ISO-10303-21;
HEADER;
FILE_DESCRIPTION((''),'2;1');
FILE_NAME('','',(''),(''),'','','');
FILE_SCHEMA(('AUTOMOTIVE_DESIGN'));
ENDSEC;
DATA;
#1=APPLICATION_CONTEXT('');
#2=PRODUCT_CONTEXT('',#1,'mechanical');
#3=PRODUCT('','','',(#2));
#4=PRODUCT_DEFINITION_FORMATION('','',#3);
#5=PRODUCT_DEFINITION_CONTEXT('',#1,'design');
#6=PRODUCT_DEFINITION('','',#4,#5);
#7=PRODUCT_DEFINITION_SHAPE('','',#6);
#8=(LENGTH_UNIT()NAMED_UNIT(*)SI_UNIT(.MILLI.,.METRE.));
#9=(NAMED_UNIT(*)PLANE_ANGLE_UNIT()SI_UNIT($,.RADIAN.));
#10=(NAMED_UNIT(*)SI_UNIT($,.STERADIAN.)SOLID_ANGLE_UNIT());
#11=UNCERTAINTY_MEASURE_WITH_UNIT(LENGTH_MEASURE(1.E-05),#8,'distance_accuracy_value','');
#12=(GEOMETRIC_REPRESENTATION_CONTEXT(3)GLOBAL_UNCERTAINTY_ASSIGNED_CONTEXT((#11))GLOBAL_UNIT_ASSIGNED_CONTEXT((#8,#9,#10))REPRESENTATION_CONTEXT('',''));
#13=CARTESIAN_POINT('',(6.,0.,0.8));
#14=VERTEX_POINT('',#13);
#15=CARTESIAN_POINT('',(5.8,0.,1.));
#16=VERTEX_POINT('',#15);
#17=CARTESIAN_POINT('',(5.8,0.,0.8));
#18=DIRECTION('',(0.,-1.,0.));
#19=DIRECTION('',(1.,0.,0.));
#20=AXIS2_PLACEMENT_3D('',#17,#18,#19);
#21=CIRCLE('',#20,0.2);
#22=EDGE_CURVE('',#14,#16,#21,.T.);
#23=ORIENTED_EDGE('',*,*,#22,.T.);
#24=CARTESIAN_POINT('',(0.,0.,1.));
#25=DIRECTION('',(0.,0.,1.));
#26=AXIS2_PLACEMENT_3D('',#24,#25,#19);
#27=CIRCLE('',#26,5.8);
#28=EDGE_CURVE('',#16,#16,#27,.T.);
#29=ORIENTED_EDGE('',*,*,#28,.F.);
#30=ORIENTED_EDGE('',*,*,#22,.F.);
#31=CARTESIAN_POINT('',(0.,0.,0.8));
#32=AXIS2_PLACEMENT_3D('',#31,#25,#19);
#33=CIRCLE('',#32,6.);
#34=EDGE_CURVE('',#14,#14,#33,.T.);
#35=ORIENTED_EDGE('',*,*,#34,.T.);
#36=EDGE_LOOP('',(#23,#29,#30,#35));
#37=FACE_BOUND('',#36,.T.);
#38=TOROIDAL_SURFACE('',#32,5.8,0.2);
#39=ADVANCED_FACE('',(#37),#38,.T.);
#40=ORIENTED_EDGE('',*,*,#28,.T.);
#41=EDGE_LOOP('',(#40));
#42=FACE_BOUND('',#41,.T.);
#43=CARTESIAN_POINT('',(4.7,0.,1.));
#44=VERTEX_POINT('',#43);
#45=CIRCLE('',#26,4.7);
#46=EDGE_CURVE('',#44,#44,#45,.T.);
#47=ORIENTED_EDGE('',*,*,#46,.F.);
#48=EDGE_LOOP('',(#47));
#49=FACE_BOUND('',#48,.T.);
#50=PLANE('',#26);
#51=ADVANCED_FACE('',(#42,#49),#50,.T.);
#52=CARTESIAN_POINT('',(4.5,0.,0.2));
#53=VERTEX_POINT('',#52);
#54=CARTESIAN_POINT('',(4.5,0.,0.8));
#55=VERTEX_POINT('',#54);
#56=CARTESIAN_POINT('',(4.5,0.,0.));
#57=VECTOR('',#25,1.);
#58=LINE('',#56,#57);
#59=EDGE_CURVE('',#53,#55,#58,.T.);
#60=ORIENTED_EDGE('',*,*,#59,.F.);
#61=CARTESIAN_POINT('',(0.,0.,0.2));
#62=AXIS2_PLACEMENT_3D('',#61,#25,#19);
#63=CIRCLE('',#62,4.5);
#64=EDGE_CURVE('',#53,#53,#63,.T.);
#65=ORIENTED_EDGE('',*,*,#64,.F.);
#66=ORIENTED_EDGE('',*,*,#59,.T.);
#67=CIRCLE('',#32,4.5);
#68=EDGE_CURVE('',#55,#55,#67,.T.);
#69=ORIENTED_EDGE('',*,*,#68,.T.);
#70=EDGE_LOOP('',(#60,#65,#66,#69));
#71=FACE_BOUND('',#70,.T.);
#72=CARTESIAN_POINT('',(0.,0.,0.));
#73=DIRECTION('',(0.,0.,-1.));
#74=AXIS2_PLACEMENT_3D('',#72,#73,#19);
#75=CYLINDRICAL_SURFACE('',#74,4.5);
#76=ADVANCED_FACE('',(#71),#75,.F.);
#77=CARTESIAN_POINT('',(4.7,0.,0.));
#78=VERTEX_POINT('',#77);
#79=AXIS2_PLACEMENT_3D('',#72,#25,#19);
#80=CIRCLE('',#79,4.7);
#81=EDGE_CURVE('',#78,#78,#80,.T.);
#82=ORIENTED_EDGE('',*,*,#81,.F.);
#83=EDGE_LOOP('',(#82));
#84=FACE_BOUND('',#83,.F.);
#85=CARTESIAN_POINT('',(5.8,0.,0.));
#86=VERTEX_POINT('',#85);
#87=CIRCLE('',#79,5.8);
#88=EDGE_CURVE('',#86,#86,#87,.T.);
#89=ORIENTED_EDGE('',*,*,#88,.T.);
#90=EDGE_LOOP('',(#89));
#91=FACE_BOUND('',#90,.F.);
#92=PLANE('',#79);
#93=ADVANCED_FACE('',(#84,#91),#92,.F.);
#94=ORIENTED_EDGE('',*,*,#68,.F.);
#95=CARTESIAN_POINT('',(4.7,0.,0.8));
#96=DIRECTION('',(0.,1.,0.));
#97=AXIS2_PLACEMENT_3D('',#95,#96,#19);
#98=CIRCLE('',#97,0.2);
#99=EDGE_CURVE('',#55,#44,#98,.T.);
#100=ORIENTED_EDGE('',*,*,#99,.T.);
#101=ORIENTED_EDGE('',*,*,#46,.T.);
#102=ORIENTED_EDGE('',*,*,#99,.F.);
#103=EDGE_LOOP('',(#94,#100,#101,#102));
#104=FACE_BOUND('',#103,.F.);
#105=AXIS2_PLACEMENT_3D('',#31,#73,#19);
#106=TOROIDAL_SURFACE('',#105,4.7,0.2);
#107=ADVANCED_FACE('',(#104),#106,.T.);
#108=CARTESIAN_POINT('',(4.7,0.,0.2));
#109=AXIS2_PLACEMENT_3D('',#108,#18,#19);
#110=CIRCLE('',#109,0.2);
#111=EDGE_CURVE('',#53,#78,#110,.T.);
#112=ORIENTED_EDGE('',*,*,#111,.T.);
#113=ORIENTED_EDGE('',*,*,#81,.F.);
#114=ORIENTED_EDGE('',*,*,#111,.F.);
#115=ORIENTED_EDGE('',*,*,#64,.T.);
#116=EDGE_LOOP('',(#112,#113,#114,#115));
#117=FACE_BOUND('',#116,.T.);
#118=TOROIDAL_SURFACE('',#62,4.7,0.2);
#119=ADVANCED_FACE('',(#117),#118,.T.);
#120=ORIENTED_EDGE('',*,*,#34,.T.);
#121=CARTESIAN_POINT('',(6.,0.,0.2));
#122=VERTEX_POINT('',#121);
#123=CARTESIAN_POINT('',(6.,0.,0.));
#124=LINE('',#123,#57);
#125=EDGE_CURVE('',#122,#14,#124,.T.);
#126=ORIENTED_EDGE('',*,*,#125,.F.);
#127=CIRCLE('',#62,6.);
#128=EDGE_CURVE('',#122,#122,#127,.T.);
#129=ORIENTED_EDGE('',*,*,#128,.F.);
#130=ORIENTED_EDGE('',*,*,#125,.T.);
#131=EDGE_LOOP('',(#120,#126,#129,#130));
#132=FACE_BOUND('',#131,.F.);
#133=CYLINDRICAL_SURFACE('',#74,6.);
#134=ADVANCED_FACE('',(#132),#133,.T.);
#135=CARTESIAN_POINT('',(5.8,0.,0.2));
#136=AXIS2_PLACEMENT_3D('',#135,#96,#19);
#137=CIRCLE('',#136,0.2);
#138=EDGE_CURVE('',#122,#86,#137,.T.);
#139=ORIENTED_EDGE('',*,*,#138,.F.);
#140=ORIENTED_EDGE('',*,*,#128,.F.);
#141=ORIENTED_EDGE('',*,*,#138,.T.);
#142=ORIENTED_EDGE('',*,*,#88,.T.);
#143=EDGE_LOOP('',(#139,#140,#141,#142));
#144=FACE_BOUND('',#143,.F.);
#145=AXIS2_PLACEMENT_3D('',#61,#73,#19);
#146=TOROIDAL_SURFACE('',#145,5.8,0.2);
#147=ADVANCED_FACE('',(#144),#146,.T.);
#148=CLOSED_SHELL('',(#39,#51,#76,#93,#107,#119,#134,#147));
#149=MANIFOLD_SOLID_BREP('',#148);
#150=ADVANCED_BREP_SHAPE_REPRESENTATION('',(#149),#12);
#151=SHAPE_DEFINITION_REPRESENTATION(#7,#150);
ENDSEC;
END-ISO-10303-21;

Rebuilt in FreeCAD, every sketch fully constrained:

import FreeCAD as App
import Part
import Sketcher

V = App.Vector
Q = App.Units.Quantity


def edges_at(feature, points):
    """Names of the edges that pass closest to the given points."""
    edges = feature.Shape.Edges
    near = lambda p: min(range(len(edges)), key=lambda i: edges[i].distToShape(Part.Vertex(*p))[0])
    return sorted({f"Edge{near(p) + 1}" for p in points})

doc = App.newDocument("Part")
body = doc.addObject("PartDesign::Body", "Body")

sketch1 = doc.addObject("Sketcher::SketchObject", "Sketch")
body.addObject(sketch1)
sketch1.AttachmentSupport = (doc.XY_Plane, [""])
sketch1.MapMode = "FlatFace"
sketch1.addGeometry([
    Part.Circle(V(0, 0, 0), V(0, 0, 1), 6),
    Part.Circle(V(0, 0, 0), V(0, 0, 1), 4.5),
], False)
sketch1.addConstraint([
    Sketcher.Constraint("Coincident", 0, 3, -1, 1),
    Sketcher.Constraint("Coincident", 1, 3, -1, 1),
    Sketcher.Constraint("Diameter", 0, Q("12 mm")),
    Sketcher.Constraint("Diameter", 1, Q("9 mm")),
])
pad1 = doc.addObject("PartDesign::Pad", "Pad")
body.addObject(pad1)
pad1.Profile = sketch1
pad1.Length = 1
doc.recompute()

fillet = doc.addObject("PartDesign::Fillet", "Fillet")
body.addObject(fillet)
fillet.Base = (pad1, edges_at(pad1, [
    (-5.594, -2.17, 1),
    (-4.196, 1.627, 1),
    (-4.196, 1.627, 0),
    (-5.594, -2.17, 0),
]))
fillet.Radius = 0.2

doc.recompute()
